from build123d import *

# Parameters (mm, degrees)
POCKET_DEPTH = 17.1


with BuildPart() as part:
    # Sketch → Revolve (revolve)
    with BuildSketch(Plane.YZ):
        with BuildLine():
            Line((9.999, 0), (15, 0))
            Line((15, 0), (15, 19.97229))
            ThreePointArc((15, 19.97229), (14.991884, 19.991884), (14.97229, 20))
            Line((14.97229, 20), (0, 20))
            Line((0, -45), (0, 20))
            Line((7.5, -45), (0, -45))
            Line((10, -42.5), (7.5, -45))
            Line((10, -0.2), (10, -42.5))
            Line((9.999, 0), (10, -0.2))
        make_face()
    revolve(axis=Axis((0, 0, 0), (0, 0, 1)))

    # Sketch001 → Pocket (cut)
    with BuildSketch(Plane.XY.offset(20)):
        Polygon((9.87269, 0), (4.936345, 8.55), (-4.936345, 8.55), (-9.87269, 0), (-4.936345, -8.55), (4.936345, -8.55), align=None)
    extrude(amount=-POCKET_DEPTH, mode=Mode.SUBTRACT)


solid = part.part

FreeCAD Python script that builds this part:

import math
import FreeCAD as App
import Part
import Sketcher
from FreeCAD import Vector
Q = App.Units.Quantity


def add_polygon(sketch, points):
    """Adds a closed chain of lines whose ends are joined by coincident constraints."""
    first, n = sketch.GeometryCount, len(points)
    for a, b in zip(points, points[1:] + points[:1]):
        sketch.addGeometry(Part.LineSegment(App.Vector(*a, 0), App.Vector(*b, 0)), False)
    for i in range(n):
        sketch.addConstraint(Sketcher.Constraint("Coincident", first + i, 2, first + (i + 1) % n, 1))

doc = App.newDocument("Part")
body = doc.addObject("PartDesign::Body", "Body")

sketch1 = body.newObject("Sketcher::SketchObject", "Sketch")
sketch1.AttachmentSupport = (doc.getObject("YZ_Plane"), [""])
sketch1.MapMode = "FlatFace"
sketch1.addGeometry(Part.LineSegment(Vector(9.999, 0, 0), Vector(15, 0, 0)), False)
sketch1.addGeometry(Part.LineSegment(Vector(15, 0, 0), Vector(15, 19.97229, 0)), False)
sketch1.addGeometry(Part.ArcOfCircle(Part.Circle(Vector(14.97229, 19.97229, 0), Vector(0, 0, 1), 0.02771), math.radians(-0.000502), math.radians(90.000502)), False)
sketch1.addGeometry(Part.LineSegment(Vector(14.97229, 20, 0), Vector(0, 20, 0)), False)
sketch1.addGeometry(Part.LineSegment(Vector(0, 20, 0), Vector(0, -45, 0)), False)
sketch1.addGeometry(Part.LineSegment(Vector(0, -45, 0), Vector(7.5, -45, 0)), False)
sketch1.addGeometry(Part.LineSegment(Vector(7.5, -45, 0), Vector(10, -42.5, 0)), False)
sketch1.addGeometry(Part.LineSegment(Vector(10, -42.5, 0), Vector(10, -0.2, 0)), False)
sketch1.addGeometry(Part.LineSegment(Vector(10, -0.2, 0), Vector(9.999, 0, 0)), False)
sketch1.addConstraint(Sketcher.Constraint("Coincident", 0, 2, 1, 1))
sketch1.addConstraint(Sketcher.Constraint("Coincident", 1, 2, 2, 1))
sketch1.addConstraint(Sketcher.Constraint("Coincident", 2, 2, 3, 1))
sketch1.addConstraint(Sketcher.Constraint("Coincident", 3, 2, 4, 1))
sketch1.addConstraint(Sketcher.Constraint("Coincident", 4, 2, 5, 1))
sketch1.addConstraint(Sketcher.Constraint("Coincident", 5, 2, 6, 1))
sketch1.addConstraint(Sketcher.Constraint("Coincident", 6, 2, 7, 1))
sketch1.addConstraint(Sketcher.Constraint("Coincident", 7, 2, 8, 1))
sketch1.addConstraint(Sketcher.Constraint("Coincident", 8, 2, 0, 1))
sketch1.addConstraint(Sketcher.Constraint("Horizontal", 0))
sketch1.addConstraint(Sketcher.Constraint("Vertical", 1))
sketch1.addConstraint(Sketcher.Constraint("Horizontal", 3))
sketch1.addConstraint(Sketcher.Constraint("Vertical", 4))
sketch1.addConstraint(Sketcher.Constraint("Horizontal", 5))
sketch1.addConstraint(Sketcher.Constraint("Vertical", 7))
sketch1.addConstraint(Sketcher.Constraint("PointOnObject", 0, 2, -1))
sketch1.addConstraint(Sketcher.Constraint("PointOnObject", 3, 2, -2))
sketch1.addConstraint(Sketcher.Constraint("Horizontal", 2, 3, 1, 2))
sketch1.addConstraint(Sketcher.Constraint("DistanceY", 4, 2, 4, 1, Q("65 mm")))
sketch1.addConstraint(Sketcher.Constraint("Angle", 6, Q("45 deg")))
sketch1.addConstraint(Sketcher.Constraint("DistanceX", 5, 1, 5, 2, Q("7.5 mm")))
sketch1.addConstraint(Sketcher.Constraint("DistanceY", 7, 1, 7, 2, Q("42.3 mm")))
sketch1.addConstraint(Sketcher.Constraint("DistanceX", -1, 1, 0, 2, Q("15 mm")))
sketch1.addConstraint(Sketcher.Constraint("DistanceY", -1, 1, 2, 2, Q("20 mm")))
sketch1.addConstraint(Sketcher.Constraint("DistanceX", -1, 1, 6, 2, Q("10 mm")))
sketch1.addConstraint(Sketcher.Constraint("DistanceX", 0, 1, 0, 2, Q("5.001 mm")))
sketch1.addConstraint(Sketcher.Constraint("Radius", 2, Q("0.02771 mm")))
sketch1.addConstraint(Sketcher.Constraint("DistanceX", 3, 2, 3, 1, Q("14.97229 mm")))
revolution = body.newObject("PartDesign::Revolution", "Revolution")
revolution.Profile = sketch1
revolution.ReferenceAxis = (sketch1, ["V_Axis"])
revolution.Angle = 360

sketch2 = body.newObject("Sketcher::SketchObject", "Sketch001")
sketch2.AttachmentSupport = (doc.getObject("XY_Plane"), [""])
sketch2.MapMode = "FlatFace"
sketch2.AttachmentOffset = App.Placement(Vector(0, 0, 20), App.Rotation())
add_polygon(sketch2, [(9.87269, 0), (4.936345, 8.55), (-4.936345, 8.55), (-9.87269, 0), (-4.936345, -8.55), (4.936345, -8.55)])
sketch2.addConstraint(Sketcher.Constraint("Horizontal", 1))
sketch2.addConstraint(Sketcher.Constraint("Horizontal", 4))
sketch2.addConstraint(Sketcher.Constraint("Symmetric", 0, 2, 3, 2, -1, 1))
sketch2.addConstraint(Sketcher.Constraint("Symmetric", 2, 2, 5, 2, -1, 1))
sketch2.addConstraint(Sketcher.Constraint("PointOnObject", 2, 2, -1))
sketch2.addConstraint(Sketcher.Constraint("Parallel", 2, 5))
sketch2.addConstraint(Sketcher.Constraint("Vertical", 1, 2, 3, 2))
sketch2.addConstraint(Sketcher.Constraint("Angle", 0, Q("120.000001 deg")))
sketch2.addConstraint(Sketcher.Constraint("DistanceY", 3, 2, 1, 2, Q("17.1 mm")))
sketch2.addConstraint(Sketcher.Constraint("DistanceX", 1, 2, 1, 1, Q("9.87269 mm")))
pocket1 = body.newObject("PartDesign::Pocket", "Pocket")
pocket1.Profile = sketch2
pocket1.Length = 17.1

doc.recompute()
